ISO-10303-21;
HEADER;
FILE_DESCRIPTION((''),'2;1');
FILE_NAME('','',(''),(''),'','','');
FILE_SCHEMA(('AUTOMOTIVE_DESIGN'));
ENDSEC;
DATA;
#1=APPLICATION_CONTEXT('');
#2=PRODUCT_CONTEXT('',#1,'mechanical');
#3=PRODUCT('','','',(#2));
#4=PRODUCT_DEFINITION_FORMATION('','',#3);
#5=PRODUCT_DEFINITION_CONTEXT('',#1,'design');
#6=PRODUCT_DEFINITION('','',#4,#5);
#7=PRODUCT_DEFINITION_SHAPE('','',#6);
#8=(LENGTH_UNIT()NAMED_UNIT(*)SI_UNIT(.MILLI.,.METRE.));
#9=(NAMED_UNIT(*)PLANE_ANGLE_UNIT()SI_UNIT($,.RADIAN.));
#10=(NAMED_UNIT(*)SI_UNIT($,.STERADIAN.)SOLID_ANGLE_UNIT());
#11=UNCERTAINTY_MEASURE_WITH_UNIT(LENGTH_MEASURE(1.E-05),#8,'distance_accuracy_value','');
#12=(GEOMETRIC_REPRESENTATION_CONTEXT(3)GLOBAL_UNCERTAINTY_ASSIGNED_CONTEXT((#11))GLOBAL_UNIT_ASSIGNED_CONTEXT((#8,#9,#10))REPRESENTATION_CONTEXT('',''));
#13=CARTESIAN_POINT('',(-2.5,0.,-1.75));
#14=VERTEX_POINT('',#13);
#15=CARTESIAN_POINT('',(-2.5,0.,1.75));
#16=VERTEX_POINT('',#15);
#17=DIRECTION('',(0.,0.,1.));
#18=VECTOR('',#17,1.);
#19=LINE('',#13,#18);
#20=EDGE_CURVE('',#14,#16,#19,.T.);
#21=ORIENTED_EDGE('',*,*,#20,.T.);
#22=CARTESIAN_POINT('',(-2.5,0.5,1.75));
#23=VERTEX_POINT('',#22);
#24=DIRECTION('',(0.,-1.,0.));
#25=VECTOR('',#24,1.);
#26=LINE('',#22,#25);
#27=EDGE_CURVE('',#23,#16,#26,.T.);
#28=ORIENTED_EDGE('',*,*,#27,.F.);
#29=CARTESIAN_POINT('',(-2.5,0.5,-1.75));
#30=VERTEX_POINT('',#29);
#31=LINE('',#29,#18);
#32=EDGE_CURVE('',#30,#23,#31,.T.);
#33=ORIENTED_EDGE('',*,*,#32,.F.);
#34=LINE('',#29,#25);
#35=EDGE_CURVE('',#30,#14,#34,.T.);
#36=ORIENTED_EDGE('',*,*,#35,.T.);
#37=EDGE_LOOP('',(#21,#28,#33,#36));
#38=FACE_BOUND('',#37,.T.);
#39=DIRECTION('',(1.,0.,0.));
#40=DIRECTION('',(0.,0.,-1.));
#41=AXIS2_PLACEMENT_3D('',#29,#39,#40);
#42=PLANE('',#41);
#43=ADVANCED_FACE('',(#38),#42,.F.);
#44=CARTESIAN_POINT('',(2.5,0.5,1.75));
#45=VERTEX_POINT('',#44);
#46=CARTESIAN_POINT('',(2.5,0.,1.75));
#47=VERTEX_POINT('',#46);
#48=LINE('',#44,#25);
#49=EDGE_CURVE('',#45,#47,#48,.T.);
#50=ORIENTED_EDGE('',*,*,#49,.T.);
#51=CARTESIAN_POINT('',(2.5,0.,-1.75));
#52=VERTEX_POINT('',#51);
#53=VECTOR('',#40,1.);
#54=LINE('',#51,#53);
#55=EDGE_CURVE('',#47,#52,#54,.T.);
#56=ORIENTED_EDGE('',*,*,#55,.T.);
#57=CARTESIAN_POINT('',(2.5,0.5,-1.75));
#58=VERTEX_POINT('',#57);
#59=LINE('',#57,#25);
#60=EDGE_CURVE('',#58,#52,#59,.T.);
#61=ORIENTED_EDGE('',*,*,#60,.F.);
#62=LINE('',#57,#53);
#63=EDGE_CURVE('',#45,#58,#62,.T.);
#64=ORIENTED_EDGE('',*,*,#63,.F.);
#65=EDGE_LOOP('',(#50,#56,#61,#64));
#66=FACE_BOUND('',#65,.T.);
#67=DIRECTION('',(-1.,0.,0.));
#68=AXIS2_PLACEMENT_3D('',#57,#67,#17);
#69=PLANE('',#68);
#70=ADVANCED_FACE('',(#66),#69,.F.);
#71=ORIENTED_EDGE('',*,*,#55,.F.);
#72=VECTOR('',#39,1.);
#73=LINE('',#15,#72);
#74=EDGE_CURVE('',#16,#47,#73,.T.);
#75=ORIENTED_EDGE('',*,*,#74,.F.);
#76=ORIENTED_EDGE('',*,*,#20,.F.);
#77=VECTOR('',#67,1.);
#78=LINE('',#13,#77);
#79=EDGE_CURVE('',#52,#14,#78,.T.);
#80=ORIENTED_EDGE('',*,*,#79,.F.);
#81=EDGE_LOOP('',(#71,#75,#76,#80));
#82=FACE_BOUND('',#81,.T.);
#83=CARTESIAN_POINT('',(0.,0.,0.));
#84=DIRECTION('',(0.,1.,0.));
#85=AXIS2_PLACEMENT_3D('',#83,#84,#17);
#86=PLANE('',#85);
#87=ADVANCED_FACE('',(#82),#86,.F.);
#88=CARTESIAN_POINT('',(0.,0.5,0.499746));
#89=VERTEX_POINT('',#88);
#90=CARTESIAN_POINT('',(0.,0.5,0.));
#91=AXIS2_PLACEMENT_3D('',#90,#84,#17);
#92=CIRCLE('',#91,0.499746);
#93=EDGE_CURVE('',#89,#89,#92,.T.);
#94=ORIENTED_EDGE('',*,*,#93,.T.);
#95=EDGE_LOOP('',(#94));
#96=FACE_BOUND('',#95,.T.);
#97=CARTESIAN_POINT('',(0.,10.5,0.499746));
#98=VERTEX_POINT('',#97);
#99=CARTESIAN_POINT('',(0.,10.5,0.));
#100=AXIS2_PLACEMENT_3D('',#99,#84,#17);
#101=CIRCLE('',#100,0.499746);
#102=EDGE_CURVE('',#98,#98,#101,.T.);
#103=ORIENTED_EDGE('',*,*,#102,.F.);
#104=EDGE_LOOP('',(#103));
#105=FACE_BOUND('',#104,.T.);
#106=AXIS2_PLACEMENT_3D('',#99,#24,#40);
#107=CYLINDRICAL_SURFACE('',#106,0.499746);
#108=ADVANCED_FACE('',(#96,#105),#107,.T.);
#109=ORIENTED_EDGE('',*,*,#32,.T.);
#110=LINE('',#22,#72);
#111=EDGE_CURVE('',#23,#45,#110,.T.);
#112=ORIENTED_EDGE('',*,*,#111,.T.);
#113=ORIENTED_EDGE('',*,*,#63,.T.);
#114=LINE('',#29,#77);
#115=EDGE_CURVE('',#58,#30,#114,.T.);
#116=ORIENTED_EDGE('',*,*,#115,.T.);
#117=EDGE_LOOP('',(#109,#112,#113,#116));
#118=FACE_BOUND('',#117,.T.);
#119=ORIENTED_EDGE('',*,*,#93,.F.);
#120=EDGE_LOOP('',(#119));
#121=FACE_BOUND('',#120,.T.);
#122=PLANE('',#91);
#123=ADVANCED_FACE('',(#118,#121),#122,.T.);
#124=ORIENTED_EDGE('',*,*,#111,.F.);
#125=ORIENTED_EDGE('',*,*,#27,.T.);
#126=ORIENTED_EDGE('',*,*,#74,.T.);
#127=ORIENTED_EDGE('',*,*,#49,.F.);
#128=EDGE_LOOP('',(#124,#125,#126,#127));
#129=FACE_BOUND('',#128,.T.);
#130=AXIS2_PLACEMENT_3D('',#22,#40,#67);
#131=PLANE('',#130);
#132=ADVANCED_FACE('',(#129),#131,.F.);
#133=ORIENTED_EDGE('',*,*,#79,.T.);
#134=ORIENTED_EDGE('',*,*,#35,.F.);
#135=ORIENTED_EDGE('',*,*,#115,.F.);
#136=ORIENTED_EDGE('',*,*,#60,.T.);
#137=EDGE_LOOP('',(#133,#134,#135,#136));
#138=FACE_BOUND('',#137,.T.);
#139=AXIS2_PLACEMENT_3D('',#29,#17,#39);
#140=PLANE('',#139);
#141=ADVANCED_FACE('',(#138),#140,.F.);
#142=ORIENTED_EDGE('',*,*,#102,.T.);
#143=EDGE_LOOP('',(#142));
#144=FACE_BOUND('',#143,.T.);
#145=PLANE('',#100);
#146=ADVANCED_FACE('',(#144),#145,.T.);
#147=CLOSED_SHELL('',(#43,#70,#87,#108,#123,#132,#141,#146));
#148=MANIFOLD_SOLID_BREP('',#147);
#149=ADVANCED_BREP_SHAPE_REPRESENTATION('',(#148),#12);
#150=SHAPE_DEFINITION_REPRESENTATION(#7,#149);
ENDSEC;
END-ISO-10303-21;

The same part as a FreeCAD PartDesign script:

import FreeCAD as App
import Part
import Sketcher
Q = App.Units.Quantity

doc = App.newDocument("Part")
body = doc.addObject("PartDesign::Body", "Body")

sketch1 = doc.addObject("Sketcher::SketchObject", "Sketch")
body.addObject(sketch1)
sketch1.AttachmentSupport = (doc.XZ_Plane, [""])
sketch1.MapMode = "FlatFace"
sketch1.addGeometry([
    Part.LineSegment(App.Vector(-2.5, -1.8, 0), App.Vector(-2.5, 1.8, 0)),
    Part.LineSegment(App.Vector(-2.5, 1.8, 0), App.Vector(2.5, 1.8, 0)),
    Part.LineSegment(App.Vector(2.5, 1.8, 0), App.Vector(2.5, -1.8, 0)),
    Part.LineSegment(App.Vector(2.5, -1.8, 0), App.Vector(-2.5, -1.8, 0)),
], False)
sketch1.addConstraint([
    Sketcher.Constraint("Coincident", 0, 2, 1, 1),
    Sketcher.Constraint("Coincident", 1, 2, 2, 1),
    Sketcher.Constraint("Coincident", 2, 2, 3, 1),
    Sketcher.Constraint("Coincident", 3, 2, 0, 1),
    Sketcher.Constraint("Vertical", 0),
    Sketcher.Constraint("Horizontal", 1),
    Sketcher.Constraint("Vertical", 2),
    Sketcher.Constraint("Horizontal", 3),
    Sketcher.Constraint("Symmetric", 0, 2, 2, 2, -1, 1),
    Sketcher.Constraint("DistanceX", 1, 1, 1, 2, Q("5 mm")),
    Sketcher.Constraint("DistanceY", 0, 1, 0, 2, Q("3.5 mm")),
])
pad1 = doc.addObject("PartDesign::Pad", "Pad")
body.addObject(pad1)
pad1.Profile = sketch1
pad1.Length = 0.5
pad1.Reversed = True

sketch2 = doc.addObject("Sketcher::SketchObject", "Sketch001")
body.addObject(sketch2)
sketch2.AttachmentSupport = (doc.XZ_Plane, [""])
sketch2.MapMode = "FlatFace"
sketch2.AttachmentOffset = App.Placement(App.Vector(0, 0, -0.5), App.Rotation())
sketch2.addGeometry(Part.Circle(App.Vector(0, 0, 0), App.Vector(0, 0, 1), 0.5), False)
sketch2.addConstraint([
    Sketcher.Constraint("Coincident", 0, 3, -1, 1),
    Sketcher.Constraint("Diameter", 0, Q("0.999493 mm")),
])
pad2 = doc.addObject("PartDesign::Pad", "Pad001")
body.addObject(pad2)
pad2.Profile = sketch2
pad2.Length = 10
pad2.Reversed = True

doc.recompute()
